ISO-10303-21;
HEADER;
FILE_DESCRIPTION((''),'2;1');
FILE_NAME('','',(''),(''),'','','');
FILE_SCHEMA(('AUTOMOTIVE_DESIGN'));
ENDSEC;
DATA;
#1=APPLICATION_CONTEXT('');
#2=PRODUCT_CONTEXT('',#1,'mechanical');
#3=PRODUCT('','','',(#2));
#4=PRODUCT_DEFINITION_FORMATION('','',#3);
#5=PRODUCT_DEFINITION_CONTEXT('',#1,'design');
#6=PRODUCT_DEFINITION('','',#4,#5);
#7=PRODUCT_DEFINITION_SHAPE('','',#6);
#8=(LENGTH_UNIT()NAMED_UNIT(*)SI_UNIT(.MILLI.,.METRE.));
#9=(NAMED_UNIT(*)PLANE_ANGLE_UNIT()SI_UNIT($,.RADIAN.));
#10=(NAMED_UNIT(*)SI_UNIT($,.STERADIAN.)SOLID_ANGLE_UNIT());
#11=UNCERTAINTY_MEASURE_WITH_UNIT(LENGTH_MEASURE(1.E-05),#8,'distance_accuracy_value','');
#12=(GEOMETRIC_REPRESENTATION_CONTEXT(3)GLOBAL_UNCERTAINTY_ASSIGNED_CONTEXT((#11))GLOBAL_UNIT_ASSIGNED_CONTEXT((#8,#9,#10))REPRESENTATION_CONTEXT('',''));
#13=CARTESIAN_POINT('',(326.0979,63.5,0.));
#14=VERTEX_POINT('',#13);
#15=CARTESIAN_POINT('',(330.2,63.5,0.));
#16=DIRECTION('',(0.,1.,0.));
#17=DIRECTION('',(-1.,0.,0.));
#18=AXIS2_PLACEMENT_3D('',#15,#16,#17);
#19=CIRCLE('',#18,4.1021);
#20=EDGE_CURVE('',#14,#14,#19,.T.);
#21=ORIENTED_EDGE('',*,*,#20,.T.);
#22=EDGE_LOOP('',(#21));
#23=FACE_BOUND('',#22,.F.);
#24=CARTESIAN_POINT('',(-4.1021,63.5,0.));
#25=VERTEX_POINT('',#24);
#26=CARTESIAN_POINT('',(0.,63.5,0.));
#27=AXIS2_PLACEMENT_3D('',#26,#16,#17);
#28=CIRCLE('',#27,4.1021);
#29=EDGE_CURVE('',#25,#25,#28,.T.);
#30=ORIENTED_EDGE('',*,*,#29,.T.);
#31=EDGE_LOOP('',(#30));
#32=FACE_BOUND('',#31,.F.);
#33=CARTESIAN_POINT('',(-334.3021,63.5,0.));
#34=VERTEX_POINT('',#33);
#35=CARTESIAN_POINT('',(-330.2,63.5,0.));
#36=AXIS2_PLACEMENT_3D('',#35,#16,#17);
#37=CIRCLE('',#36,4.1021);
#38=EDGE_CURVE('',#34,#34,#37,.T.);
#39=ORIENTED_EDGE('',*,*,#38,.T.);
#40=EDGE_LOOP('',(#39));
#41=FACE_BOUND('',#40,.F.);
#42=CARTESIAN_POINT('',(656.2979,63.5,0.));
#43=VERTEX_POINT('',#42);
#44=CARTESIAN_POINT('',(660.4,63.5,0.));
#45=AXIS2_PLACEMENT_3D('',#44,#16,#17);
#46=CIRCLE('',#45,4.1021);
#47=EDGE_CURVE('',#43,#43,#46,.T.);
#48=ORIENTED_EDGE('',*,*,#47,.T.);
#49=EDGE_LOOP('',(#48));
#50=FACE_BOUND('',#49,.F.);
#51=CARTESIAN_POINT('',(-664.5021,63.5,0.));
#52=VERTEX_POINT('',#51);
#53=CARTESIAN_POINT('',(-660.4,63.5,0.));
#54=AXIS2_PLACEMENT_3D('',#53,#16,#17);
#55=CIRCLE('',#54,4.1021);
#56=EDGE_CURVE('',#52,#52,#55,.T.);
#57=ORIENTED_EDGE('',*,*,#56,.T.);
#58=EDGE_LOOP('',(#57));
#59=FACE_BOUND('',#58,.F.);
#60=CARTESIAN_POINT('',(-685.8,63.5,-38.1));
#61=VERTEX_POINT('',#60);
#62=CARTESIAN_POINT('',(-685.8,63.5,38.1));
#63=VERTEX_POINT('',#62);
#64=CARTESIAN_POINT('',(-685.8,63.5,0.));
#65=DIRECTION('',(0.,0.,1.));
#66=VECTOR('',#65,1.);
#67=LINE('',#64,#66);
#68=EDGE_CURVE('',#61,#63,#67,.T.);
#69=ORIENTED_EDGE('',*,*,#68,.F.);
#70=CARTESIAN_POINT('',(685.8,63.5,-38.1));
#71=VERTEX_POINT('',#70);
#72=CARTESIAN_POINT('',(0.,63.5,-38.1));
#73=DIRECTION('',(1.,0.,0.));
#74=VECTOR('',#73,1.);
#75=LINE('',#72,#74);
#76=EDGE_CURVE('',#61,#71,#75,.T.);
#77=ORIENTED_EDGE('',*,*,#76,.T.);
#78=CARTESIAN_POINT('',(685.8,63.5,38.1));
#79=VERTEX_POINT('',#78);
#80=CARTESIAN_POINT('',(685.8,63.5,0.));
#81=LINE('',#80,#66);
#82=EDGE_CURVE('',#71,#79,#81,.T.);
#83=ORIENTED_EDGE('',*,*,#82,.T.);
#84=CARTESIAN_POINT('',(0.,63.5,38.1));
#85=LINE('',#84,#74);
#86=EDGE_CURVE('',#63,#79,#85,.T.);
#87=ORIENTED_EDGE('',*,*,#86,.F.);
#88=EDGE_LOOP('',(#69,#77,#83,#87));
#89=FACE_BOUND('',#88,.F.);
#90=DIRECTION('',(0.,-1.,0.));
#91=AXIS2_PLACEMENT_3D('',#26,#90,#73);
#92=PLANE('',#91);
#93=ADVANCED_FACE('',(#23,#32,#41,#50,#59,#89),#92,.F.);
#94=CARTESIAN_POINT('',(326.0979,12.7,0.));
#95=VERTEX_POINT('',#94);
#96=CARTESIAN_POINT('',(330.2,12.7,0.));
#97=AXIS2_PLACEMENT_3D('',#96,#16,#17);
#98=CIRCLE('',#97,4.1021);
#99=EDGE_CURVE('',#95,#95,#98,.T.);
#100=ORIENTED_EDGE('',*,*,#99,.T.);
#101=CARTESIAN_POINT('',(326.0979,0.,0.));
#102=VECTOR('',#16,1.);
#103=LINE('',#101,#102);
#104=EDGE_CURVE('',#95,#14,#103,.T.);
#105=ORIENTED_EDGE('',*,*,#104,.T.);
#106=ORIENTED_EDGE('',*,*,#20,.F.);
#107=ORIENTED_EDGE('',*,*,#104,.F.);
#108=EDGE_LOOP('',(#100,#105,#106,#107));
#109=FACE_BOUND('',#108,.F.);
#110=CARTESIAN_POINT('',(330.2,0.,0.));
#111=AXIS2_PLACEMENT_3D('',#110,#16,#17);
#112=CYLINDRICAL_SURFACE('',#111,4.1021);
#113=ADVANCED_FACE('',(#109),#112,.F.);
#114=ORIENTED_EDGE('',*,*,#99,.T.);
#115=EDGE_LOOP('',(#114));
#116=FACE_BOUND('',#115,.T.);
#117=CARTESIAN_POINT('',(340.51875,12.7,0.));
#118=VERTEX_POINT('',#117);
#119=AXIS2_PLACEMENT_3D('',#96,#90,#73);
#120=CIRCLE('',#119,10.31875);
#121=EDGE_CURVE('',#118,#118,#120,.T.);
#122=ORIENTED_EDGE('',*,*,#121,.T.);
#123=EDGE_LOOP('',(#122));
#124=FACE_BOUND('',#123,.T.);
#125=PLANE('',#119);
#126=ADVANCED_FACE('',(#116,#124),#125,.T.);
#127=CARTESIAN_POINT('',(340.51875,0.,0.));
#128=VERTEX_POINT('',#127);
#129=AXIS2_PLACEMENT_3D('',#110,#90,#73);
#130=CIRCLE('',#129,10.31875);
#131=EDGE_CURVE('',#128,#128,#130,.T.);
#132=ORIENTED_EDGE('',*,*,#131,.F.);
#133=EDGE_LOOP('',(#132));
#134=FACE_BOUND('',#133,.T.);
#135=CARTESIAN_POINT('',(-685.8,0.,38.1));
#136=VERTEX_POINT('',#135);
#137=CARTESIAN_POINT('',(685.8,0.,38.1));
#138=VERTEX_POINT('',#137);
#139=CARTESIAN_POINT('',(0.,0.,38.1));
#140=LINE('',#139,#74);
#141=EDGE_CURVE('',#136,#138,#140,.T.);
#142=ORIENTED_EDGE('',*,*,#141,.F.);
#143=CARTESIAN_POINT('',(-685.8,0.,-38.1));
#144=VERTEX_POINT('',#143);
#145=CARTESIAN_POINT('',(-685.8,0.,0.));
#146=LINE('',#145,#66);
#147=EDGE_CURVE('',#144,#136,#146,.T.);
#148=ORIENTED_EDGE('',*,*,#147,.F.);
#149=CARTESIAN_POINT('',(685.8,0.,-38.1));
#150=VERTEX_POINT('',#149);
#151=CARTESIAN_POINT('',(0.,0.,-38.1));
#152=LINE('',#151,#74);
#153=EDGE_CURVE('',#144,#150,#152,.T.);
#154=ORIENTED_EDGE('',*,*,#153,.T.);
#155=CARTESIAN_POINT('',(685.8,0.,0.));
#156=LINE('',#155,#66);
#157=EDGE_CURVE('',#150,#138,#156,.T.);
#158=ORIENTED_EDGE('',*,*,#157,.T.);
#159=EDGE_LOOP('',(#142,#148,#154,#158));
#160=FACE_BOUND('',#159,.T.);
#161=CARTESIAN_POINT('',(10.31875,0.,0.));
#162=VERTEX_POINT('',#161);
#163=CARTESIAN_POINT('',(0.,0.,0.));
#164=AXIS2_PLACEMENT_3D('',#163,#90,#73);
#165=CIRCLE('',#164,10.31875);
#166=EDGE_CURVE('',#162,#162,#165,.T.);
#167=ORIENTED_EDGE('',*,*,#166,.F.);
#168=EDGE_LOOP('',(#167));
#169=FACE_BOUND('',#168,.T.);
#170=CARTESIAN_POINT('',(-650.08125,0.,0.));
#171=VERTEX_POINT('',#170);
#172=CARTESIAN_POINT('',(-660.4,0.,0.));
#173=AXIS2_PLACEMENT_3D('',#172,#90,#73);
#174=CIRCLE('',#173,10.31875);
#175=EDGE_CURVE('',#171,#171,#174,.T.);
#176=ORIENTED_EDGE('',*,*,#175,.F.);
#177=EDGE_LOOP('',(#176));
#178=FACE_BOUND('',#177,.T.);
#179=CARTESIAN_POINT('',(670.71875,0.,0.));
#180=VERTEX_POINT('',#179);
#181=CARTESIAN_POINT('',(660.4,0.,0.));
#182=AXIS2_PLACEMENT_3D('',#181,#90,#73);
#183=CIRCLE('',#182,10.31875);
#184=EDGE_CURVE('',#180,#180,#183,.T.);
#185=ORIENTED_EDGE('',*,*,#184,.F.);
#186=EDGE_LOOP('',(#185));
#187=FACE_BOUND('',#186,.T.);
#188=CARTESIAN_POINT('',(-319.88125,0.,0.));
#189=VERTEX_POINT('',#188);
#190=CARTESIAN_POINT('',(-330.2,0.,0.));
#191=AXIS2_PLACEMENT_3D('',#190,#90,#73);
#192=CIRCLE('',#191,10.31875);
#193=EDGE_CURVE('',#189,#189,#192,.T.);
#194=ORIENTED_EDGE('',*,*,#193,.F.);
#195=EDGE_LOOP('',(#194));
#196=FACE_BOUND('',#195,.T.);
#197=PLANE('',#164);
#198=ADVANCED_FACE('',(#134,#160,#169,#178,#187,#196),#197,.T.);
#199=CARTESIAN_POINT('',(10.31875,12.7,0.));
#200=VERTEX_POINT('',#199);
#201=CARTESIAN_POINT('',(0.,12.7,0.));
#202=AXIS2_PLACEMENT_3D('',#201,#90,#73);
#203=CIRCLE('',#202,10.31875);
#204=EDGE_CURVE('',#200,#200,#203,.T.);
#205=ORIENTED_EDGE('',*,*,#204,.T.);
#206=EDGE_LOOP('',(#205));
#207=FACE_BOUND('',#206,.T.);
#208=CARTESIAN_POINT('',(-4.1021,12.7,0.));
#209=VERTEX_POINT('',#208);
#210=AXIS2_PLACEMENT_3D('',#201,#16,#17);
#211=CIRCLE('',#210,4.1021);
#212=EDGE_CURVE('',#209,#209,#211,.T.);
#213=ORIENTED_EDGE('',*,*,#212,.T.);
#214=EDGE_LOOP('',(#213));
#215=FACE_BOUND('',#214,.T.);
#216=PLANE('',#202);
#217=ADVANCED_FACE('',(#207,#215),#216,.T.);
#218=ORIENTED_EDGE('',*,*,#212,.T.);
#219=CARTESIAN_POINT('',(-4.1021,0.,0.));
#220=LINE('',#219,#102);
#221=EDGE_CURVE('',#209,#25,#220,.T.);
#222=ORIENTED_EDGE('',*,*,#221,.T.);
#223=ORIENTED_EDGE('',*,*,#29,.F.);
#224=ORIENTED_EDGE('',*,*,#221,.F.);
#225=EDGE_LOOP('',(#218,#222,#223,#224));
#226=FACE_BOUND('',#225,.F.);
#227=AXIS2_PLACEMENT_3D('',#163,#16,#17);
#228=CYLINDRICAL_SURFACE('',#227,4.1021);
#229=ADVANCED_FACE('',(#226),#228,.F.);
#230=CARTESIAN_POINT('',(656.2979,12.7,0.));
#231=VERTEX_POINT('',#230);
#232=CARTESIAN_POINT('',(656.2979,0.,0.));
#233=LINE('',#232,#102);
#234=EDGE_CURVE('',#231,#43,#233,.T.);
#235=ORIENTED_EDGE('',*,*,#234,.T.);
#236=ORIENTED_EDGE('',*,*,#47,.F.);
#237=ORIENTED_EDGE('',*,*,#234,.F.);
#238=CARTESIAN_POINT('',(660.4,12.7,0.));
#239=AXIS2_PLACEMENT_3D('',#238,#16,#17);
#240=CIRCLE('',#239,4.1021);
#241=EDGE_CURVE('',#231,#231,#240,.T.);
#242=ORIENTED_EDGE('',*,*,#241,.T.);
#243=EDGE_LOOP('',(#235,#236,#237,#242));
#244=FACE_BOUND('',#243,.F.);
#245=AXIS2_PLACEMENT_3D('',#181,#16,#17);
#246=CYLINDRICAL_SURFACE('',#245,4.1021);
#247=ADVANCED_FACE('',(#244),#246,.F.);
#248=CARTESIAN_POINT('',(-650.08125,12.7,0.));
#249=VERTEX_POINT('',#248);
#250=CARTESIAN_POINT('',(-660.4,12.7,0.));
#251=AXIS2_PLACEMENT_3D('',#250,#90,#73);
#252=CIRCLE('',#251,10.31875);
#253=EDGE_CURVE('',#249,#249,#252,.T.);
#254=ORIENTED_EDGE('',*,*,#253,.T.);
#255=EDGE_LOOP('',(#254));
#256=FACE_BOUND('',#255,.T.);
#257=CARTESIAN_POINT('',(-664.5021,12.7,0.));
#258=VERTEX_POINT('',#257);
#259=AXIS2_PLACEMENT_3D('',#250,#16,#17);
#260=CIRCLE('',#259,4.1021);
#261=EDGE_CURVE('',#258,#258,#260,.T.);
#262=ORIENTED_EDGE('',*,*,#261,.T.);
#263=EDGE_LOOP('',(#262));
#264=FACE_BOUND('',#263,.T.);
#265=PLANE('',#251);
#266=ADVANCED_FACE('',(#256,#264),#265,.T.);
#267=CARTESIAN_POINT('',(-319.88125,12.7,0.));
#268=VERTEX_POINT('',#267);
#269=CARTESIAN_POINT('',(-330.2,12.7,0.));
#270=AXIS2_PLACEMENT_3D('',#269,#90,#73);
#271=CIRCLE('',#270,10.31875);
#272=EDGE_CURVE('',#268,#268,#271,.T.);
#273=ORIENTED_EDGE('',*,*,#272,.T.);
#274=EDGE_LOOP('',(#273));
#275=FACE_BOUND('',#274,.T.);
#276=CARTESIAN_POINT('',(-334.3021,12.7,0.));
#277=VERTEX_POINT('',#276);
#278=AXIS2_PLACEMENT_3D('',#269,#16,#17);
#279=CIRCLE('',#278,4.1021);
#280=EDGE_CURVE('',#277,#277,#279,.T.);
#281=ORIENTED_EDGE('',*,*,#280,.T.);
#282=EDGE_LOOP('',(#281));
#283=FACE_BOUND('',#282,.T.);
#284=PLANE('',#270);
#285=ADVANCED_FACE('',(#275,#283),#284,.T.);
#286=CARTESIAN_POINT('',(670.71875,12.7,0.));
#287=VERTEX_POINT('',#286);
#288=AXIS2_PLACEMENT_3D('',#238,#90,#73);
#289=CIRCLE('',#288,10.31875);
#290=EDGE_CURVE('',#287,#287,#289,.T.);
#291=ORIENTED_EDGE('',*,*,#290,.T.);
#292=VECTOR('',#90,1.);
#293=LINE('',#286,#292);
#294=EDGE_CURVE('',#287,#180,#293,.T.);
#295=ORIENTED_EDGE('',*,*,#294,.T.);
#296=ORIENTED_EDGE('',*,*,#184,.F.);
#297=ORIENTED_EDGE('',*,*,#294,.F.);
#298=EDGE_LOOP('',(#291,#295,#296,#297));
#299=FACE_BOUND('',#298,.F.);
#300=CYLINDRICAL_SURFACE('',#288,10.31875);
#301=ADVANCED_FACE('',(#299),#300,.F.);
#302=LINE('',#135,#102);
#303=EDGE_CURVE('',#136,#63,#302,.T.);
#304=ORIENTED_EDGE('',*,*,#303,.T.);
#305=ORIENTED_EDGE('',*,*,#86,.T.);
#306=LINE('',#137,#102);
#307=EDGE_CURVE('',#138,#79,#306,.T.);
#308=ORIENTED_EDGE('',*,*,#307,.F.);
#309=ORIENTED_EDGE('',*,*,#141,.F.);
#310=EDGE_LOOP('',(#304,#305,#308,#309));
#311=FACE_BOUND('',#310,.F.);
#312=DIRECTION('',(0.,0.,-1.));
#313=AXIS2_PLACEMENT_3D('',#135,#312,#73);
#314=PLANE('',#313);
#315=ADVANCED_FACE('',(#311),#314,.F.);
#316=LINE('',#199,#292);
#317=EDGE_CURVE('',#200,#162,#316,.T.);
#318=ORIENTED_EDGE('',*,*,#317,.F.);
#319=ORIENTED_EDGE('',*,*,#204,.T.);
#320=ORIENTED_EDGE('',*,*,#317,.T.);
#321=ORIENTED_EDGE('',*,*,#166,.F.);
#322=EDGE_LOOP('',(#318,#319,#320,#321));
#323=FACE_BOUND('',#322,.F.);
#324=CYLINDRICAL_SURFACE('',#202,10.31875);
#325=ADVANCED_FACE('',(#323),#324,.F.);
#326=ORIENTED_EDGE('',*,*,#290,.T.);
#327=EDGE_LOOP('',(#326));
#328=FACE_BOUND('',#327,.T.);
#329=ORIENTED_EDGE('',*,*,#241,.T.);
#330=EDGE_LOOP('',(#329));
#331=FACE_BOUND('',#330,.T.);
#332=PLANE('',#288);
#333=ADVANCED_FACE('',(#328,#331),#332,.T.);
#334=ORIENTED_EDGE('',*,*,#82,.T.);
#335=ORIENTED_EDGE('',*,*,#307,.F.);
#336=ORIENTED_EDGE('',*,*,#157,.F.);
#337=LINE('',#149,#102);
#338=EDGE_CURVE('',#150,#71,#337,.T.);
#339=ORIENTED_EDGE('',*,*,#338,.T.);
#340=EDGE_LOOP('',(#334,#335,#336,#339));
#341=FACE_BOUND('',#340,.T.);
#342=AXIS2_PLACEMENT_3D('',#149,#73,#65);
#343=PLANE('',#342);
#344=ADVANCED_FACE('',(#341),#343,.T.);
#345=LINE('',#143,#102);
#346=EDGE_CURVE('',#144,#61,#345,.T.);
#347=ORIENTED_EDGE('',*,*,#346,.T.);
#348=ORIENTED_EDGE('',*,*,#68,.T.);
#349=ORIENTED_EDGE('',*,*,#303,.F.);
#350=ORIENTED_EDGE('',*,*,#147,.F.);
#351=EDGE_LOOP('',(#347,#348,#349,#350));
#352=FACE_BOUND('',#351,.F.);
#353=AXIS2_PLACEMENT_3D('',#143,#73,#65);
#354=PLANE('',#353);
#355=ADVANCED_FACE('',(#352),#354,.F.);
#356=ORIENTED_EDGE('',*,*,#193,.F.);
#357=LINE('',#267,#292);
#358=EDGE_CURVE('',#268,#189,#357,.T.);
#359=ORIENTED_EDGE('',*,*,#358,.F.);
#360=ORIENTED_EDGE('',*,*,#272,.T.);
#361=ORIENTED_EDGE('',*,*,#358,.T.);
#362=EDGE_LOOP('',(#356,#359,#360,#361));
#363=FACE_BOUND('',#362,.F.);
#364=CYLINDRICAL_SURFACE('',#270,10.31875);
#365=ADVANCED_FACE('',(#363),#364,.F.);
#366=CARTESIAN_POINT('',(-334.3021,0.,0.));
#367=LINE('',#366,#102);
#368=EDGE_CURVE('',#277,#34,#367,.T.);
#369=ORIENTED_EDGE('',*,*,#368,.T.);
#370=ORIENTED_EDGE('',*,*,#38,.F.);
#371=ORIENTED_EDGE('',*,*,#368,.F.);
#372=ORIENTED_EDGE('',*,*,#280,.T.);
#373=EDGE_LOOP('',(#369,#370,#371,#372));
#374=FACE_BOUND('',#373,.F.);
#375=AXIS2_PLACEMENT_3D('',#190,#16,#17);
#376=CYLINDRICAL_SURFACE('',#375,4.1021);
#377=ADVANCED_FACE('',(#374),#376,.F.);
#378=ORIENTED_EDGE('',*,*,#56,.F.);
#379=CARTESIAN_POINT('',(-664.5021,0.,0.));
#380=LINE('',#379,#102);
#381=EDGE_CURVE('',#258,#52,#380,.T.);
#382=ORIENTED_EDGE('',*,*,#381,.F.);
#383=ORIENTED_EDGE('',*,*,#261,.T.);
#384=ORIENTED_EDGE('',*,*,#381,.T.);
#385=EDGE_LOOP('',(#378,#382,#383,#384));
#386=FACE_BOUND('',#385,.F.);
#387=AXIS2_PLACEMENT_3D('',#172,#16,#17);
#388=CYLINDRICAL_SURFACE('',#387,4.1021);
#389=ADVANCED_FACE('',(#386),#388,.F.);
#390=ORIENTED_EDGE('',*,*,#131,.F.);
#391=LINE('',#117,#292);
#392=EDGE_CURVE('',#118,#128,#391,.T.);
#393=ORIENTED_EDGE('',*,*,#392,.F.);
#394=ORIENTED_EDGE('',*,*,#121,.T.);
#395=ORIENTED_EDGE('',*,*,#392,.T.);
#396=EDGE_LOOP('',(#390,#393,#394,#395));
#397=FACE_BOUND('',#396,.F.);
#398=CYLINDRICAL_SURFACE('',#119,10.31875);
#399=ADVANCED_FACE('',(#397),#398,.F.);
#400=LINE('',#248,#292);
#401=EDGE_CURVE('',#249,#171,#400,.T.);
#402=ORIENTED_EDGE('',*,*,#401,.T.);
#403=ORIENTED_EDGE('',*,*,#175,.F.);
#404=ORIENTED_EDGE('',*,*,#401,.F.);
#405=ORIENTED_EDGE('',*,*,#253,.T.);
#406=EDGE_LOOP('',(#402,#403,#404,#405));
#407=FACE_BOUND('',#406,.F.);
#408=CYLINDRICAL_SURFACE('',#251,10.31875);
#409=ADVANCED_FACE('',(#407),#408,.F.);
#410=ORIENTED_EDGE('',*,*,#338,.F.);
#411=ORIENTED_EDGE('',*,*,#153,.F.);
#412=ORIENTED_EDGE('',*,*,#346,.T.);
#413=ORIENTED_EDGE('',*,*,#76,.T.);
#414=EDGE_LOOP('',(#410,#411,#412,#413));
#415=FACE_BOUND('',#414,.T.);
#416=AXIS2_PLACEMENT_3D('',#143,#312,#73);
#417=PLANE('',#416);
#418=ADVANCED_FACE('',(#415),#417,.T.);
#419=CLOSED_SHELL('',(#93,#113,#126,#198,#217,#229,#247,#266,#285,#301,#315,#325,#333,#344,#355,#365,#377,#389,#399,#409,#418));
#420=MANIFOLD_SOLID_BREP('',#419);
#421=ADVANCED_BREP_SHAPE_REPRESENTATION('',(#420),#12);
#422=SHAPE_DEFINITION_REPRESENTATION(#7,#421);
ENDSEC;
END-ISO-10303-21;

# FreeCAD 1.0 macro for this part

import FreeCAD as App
import Part
import Sketcher
Q = App.Units.Quantity


def add_polygon(sketch, points):
    """Adds a closed chain of lines whose ends are joined by coincident constraints."""
    first, n = sketch.GeometryCount, len(points)
    for a, b in zip(points, points[1:] + points[:1]):
        sketch.addGeometry(Part.LineSegment(App.Vector(*a, 0), App.Vector(*b, 0)), False)
    for i in range(n):
        sketch.addConstraint(Sketcher.Constraint("Coincident", first + i, 2, first + (i + 1) % n, 1))

doc = App.newDocument("Part")
params = doc.addObject("Spreadsheet::Sheet", "Params")
for row, (alias, value) in enumerate([
    ("sketch1_width", "54 in"),
    ("sketch1_height", "3 in"),
    ("pad1_length", "2.5 in"),
    ("sketch2_diameter", "0.323 in"),
    ("hole_diameter", "0.323 in"),
    ("hole_cbore_diameter", "0.8125 in"),
    ("hole_cbore_depth", "0.5 in"),
], start=1):
    params.set(f"A{row}", alias)
    params.set(f"B{row}", "=" + value)
    params.setAlias(f"B{row}", alias)

body = doc.addObject("PartDesign::Body", "Body")

# Sketch on XZ plane
sketch1 = body.newObject("Sketcher::SketchObject", "Sketch")
sketch1.AttachmentSupport = (doc.getObject("XZ_Plane"), [""])
sketch1.MapMode = "FlatFace"
add_polygon(sketch1, [(-686, 38), (-686, -38), (686, -38), (686, 38)])  # lines 0-3
sketch1.addConstraint(Sketcher.Constraint("Vertical", 0))
sketch1.addConstraint(Sketcher.Constraint("Horizontal", 1))
sketch1.addConstraint(Sketcher.Constraint("Vertical", 2))
sketch1.addConstraint(Sketcher.Constraint("Horizontal", 3))
sketch1.addConstraint(Sketcher.Constraint("Symmetric", 0, 2, 2, 2, -1, 1))
sketch1.addConstraint(Sketcher.Constraint("DistanceX", 1, 1, 1, 2, Q("54 in")))
sketch1.addConstraint(Sketcher.Constraint("DistanceY", 0, 2, 0, 1, Q("3 in")))
sketch1.setExpression("Constraints[9]", "Params.sketch1_width")
sketch1.setExpression("Constraints[10]", "Params.sketch1_height")
pad1 = body.newObject("PartDesign::Pad", "Pad")
pad1.Profile = sketch1
pad1.setExpression("Length", "Params.pad1_length")
pad1.Reversed = True

# Sketch on XZ plane
sketch2 = body.newObject("Sketcher::SketchObject", "Sketch001")
sketch2.AttachmentSupport = (doc.getObject("XZ_Plane"), [""])
sketch2.MapMode = "FlatFace"
sketch2.addGeometry(Part.Circle(App.Vector(-660.4, 0, 0), App.Vector(0, 0, 1), 4.1), False)
sketch2.addGeometry(Part.Circle(App.Vector(-330.2, 0, 0), App.Vector(0, 0, 1), 4.1), False)
sketch2.addGeometry(Part.Circle(App.Vector(0, 0, 0), App.Vector(0, 0, 1), 4.1), False)
sketch2.addGeometry(Part.Circle(App.Vector(330.2, 0, 0), App.Vector(0, 0, 1), 4.1), False)
sketch2.addGeometry(Part.Circle(App.Vector(660.4, 0, 0), App.Vector(0, 0, 1), 4.1), False)
sketch2.addConstraint(Sketcher.Constraint("Coincident", 2, 3, -1, 1))
sketch2.addConstraint(Sketcher.Constraint("Equal", 0, 1))
sketch2.addConstraint(Sketcher.Constraint("Equal", 1, 2))
sketch2.addConstraint(Sketcher.Constraint("Equal", 2, 3))
sketch2.addConstraint(Sketcher.Constraint("Equal", 3, 4))
sketch2.addConstraint(Sketcher.Constraint("Symmetric", 1, 3, 3, 3, -1, 1))
sketch2.addConstraint(Sketcher.Constraint("Symmetric", 0, 3, 4, 3, -1, 1))
sketch2.addConstraint(Sketcher.Constraint("PointOnObject", 0, 3, -1))
sketch2.addConstraint(Sketcher.Constraint("PointOnObject", 1, 3, -1))
sketch2.addConstraint(Sketcher.Constraint("Diameter", 0, Q("0.323 in")))
sketch2.addConstraint(Sketcher.Constraint("DistanceX", 0, 3, -1, 1, Q("26 in")))
sketch2.addConstraint(Sketcher.Constraint("DistanceX", 1, 3, -1, 1, Q("13 in")))
sketch2.setExpression("Constraints[9]", "Params.sketch2_diameter")
doc.recompute()
hole = body.newObject("PartDesign::Hole", "Hole")
hole.Profile = sketch2
hole.ThreadType = "None"
hole.setExpression("Diameter", "Params.hole_diameter")
hole.DepthType = "ThroughAll"
hole.HoleCutType = "Counterbore"
hole.setExpression("HoleCutDiameter", "Params.hole_cbore_diameter")
hole.setExpression("HoleCutDepth", "Params.hole_cbore_depth")

doc.recompute()
